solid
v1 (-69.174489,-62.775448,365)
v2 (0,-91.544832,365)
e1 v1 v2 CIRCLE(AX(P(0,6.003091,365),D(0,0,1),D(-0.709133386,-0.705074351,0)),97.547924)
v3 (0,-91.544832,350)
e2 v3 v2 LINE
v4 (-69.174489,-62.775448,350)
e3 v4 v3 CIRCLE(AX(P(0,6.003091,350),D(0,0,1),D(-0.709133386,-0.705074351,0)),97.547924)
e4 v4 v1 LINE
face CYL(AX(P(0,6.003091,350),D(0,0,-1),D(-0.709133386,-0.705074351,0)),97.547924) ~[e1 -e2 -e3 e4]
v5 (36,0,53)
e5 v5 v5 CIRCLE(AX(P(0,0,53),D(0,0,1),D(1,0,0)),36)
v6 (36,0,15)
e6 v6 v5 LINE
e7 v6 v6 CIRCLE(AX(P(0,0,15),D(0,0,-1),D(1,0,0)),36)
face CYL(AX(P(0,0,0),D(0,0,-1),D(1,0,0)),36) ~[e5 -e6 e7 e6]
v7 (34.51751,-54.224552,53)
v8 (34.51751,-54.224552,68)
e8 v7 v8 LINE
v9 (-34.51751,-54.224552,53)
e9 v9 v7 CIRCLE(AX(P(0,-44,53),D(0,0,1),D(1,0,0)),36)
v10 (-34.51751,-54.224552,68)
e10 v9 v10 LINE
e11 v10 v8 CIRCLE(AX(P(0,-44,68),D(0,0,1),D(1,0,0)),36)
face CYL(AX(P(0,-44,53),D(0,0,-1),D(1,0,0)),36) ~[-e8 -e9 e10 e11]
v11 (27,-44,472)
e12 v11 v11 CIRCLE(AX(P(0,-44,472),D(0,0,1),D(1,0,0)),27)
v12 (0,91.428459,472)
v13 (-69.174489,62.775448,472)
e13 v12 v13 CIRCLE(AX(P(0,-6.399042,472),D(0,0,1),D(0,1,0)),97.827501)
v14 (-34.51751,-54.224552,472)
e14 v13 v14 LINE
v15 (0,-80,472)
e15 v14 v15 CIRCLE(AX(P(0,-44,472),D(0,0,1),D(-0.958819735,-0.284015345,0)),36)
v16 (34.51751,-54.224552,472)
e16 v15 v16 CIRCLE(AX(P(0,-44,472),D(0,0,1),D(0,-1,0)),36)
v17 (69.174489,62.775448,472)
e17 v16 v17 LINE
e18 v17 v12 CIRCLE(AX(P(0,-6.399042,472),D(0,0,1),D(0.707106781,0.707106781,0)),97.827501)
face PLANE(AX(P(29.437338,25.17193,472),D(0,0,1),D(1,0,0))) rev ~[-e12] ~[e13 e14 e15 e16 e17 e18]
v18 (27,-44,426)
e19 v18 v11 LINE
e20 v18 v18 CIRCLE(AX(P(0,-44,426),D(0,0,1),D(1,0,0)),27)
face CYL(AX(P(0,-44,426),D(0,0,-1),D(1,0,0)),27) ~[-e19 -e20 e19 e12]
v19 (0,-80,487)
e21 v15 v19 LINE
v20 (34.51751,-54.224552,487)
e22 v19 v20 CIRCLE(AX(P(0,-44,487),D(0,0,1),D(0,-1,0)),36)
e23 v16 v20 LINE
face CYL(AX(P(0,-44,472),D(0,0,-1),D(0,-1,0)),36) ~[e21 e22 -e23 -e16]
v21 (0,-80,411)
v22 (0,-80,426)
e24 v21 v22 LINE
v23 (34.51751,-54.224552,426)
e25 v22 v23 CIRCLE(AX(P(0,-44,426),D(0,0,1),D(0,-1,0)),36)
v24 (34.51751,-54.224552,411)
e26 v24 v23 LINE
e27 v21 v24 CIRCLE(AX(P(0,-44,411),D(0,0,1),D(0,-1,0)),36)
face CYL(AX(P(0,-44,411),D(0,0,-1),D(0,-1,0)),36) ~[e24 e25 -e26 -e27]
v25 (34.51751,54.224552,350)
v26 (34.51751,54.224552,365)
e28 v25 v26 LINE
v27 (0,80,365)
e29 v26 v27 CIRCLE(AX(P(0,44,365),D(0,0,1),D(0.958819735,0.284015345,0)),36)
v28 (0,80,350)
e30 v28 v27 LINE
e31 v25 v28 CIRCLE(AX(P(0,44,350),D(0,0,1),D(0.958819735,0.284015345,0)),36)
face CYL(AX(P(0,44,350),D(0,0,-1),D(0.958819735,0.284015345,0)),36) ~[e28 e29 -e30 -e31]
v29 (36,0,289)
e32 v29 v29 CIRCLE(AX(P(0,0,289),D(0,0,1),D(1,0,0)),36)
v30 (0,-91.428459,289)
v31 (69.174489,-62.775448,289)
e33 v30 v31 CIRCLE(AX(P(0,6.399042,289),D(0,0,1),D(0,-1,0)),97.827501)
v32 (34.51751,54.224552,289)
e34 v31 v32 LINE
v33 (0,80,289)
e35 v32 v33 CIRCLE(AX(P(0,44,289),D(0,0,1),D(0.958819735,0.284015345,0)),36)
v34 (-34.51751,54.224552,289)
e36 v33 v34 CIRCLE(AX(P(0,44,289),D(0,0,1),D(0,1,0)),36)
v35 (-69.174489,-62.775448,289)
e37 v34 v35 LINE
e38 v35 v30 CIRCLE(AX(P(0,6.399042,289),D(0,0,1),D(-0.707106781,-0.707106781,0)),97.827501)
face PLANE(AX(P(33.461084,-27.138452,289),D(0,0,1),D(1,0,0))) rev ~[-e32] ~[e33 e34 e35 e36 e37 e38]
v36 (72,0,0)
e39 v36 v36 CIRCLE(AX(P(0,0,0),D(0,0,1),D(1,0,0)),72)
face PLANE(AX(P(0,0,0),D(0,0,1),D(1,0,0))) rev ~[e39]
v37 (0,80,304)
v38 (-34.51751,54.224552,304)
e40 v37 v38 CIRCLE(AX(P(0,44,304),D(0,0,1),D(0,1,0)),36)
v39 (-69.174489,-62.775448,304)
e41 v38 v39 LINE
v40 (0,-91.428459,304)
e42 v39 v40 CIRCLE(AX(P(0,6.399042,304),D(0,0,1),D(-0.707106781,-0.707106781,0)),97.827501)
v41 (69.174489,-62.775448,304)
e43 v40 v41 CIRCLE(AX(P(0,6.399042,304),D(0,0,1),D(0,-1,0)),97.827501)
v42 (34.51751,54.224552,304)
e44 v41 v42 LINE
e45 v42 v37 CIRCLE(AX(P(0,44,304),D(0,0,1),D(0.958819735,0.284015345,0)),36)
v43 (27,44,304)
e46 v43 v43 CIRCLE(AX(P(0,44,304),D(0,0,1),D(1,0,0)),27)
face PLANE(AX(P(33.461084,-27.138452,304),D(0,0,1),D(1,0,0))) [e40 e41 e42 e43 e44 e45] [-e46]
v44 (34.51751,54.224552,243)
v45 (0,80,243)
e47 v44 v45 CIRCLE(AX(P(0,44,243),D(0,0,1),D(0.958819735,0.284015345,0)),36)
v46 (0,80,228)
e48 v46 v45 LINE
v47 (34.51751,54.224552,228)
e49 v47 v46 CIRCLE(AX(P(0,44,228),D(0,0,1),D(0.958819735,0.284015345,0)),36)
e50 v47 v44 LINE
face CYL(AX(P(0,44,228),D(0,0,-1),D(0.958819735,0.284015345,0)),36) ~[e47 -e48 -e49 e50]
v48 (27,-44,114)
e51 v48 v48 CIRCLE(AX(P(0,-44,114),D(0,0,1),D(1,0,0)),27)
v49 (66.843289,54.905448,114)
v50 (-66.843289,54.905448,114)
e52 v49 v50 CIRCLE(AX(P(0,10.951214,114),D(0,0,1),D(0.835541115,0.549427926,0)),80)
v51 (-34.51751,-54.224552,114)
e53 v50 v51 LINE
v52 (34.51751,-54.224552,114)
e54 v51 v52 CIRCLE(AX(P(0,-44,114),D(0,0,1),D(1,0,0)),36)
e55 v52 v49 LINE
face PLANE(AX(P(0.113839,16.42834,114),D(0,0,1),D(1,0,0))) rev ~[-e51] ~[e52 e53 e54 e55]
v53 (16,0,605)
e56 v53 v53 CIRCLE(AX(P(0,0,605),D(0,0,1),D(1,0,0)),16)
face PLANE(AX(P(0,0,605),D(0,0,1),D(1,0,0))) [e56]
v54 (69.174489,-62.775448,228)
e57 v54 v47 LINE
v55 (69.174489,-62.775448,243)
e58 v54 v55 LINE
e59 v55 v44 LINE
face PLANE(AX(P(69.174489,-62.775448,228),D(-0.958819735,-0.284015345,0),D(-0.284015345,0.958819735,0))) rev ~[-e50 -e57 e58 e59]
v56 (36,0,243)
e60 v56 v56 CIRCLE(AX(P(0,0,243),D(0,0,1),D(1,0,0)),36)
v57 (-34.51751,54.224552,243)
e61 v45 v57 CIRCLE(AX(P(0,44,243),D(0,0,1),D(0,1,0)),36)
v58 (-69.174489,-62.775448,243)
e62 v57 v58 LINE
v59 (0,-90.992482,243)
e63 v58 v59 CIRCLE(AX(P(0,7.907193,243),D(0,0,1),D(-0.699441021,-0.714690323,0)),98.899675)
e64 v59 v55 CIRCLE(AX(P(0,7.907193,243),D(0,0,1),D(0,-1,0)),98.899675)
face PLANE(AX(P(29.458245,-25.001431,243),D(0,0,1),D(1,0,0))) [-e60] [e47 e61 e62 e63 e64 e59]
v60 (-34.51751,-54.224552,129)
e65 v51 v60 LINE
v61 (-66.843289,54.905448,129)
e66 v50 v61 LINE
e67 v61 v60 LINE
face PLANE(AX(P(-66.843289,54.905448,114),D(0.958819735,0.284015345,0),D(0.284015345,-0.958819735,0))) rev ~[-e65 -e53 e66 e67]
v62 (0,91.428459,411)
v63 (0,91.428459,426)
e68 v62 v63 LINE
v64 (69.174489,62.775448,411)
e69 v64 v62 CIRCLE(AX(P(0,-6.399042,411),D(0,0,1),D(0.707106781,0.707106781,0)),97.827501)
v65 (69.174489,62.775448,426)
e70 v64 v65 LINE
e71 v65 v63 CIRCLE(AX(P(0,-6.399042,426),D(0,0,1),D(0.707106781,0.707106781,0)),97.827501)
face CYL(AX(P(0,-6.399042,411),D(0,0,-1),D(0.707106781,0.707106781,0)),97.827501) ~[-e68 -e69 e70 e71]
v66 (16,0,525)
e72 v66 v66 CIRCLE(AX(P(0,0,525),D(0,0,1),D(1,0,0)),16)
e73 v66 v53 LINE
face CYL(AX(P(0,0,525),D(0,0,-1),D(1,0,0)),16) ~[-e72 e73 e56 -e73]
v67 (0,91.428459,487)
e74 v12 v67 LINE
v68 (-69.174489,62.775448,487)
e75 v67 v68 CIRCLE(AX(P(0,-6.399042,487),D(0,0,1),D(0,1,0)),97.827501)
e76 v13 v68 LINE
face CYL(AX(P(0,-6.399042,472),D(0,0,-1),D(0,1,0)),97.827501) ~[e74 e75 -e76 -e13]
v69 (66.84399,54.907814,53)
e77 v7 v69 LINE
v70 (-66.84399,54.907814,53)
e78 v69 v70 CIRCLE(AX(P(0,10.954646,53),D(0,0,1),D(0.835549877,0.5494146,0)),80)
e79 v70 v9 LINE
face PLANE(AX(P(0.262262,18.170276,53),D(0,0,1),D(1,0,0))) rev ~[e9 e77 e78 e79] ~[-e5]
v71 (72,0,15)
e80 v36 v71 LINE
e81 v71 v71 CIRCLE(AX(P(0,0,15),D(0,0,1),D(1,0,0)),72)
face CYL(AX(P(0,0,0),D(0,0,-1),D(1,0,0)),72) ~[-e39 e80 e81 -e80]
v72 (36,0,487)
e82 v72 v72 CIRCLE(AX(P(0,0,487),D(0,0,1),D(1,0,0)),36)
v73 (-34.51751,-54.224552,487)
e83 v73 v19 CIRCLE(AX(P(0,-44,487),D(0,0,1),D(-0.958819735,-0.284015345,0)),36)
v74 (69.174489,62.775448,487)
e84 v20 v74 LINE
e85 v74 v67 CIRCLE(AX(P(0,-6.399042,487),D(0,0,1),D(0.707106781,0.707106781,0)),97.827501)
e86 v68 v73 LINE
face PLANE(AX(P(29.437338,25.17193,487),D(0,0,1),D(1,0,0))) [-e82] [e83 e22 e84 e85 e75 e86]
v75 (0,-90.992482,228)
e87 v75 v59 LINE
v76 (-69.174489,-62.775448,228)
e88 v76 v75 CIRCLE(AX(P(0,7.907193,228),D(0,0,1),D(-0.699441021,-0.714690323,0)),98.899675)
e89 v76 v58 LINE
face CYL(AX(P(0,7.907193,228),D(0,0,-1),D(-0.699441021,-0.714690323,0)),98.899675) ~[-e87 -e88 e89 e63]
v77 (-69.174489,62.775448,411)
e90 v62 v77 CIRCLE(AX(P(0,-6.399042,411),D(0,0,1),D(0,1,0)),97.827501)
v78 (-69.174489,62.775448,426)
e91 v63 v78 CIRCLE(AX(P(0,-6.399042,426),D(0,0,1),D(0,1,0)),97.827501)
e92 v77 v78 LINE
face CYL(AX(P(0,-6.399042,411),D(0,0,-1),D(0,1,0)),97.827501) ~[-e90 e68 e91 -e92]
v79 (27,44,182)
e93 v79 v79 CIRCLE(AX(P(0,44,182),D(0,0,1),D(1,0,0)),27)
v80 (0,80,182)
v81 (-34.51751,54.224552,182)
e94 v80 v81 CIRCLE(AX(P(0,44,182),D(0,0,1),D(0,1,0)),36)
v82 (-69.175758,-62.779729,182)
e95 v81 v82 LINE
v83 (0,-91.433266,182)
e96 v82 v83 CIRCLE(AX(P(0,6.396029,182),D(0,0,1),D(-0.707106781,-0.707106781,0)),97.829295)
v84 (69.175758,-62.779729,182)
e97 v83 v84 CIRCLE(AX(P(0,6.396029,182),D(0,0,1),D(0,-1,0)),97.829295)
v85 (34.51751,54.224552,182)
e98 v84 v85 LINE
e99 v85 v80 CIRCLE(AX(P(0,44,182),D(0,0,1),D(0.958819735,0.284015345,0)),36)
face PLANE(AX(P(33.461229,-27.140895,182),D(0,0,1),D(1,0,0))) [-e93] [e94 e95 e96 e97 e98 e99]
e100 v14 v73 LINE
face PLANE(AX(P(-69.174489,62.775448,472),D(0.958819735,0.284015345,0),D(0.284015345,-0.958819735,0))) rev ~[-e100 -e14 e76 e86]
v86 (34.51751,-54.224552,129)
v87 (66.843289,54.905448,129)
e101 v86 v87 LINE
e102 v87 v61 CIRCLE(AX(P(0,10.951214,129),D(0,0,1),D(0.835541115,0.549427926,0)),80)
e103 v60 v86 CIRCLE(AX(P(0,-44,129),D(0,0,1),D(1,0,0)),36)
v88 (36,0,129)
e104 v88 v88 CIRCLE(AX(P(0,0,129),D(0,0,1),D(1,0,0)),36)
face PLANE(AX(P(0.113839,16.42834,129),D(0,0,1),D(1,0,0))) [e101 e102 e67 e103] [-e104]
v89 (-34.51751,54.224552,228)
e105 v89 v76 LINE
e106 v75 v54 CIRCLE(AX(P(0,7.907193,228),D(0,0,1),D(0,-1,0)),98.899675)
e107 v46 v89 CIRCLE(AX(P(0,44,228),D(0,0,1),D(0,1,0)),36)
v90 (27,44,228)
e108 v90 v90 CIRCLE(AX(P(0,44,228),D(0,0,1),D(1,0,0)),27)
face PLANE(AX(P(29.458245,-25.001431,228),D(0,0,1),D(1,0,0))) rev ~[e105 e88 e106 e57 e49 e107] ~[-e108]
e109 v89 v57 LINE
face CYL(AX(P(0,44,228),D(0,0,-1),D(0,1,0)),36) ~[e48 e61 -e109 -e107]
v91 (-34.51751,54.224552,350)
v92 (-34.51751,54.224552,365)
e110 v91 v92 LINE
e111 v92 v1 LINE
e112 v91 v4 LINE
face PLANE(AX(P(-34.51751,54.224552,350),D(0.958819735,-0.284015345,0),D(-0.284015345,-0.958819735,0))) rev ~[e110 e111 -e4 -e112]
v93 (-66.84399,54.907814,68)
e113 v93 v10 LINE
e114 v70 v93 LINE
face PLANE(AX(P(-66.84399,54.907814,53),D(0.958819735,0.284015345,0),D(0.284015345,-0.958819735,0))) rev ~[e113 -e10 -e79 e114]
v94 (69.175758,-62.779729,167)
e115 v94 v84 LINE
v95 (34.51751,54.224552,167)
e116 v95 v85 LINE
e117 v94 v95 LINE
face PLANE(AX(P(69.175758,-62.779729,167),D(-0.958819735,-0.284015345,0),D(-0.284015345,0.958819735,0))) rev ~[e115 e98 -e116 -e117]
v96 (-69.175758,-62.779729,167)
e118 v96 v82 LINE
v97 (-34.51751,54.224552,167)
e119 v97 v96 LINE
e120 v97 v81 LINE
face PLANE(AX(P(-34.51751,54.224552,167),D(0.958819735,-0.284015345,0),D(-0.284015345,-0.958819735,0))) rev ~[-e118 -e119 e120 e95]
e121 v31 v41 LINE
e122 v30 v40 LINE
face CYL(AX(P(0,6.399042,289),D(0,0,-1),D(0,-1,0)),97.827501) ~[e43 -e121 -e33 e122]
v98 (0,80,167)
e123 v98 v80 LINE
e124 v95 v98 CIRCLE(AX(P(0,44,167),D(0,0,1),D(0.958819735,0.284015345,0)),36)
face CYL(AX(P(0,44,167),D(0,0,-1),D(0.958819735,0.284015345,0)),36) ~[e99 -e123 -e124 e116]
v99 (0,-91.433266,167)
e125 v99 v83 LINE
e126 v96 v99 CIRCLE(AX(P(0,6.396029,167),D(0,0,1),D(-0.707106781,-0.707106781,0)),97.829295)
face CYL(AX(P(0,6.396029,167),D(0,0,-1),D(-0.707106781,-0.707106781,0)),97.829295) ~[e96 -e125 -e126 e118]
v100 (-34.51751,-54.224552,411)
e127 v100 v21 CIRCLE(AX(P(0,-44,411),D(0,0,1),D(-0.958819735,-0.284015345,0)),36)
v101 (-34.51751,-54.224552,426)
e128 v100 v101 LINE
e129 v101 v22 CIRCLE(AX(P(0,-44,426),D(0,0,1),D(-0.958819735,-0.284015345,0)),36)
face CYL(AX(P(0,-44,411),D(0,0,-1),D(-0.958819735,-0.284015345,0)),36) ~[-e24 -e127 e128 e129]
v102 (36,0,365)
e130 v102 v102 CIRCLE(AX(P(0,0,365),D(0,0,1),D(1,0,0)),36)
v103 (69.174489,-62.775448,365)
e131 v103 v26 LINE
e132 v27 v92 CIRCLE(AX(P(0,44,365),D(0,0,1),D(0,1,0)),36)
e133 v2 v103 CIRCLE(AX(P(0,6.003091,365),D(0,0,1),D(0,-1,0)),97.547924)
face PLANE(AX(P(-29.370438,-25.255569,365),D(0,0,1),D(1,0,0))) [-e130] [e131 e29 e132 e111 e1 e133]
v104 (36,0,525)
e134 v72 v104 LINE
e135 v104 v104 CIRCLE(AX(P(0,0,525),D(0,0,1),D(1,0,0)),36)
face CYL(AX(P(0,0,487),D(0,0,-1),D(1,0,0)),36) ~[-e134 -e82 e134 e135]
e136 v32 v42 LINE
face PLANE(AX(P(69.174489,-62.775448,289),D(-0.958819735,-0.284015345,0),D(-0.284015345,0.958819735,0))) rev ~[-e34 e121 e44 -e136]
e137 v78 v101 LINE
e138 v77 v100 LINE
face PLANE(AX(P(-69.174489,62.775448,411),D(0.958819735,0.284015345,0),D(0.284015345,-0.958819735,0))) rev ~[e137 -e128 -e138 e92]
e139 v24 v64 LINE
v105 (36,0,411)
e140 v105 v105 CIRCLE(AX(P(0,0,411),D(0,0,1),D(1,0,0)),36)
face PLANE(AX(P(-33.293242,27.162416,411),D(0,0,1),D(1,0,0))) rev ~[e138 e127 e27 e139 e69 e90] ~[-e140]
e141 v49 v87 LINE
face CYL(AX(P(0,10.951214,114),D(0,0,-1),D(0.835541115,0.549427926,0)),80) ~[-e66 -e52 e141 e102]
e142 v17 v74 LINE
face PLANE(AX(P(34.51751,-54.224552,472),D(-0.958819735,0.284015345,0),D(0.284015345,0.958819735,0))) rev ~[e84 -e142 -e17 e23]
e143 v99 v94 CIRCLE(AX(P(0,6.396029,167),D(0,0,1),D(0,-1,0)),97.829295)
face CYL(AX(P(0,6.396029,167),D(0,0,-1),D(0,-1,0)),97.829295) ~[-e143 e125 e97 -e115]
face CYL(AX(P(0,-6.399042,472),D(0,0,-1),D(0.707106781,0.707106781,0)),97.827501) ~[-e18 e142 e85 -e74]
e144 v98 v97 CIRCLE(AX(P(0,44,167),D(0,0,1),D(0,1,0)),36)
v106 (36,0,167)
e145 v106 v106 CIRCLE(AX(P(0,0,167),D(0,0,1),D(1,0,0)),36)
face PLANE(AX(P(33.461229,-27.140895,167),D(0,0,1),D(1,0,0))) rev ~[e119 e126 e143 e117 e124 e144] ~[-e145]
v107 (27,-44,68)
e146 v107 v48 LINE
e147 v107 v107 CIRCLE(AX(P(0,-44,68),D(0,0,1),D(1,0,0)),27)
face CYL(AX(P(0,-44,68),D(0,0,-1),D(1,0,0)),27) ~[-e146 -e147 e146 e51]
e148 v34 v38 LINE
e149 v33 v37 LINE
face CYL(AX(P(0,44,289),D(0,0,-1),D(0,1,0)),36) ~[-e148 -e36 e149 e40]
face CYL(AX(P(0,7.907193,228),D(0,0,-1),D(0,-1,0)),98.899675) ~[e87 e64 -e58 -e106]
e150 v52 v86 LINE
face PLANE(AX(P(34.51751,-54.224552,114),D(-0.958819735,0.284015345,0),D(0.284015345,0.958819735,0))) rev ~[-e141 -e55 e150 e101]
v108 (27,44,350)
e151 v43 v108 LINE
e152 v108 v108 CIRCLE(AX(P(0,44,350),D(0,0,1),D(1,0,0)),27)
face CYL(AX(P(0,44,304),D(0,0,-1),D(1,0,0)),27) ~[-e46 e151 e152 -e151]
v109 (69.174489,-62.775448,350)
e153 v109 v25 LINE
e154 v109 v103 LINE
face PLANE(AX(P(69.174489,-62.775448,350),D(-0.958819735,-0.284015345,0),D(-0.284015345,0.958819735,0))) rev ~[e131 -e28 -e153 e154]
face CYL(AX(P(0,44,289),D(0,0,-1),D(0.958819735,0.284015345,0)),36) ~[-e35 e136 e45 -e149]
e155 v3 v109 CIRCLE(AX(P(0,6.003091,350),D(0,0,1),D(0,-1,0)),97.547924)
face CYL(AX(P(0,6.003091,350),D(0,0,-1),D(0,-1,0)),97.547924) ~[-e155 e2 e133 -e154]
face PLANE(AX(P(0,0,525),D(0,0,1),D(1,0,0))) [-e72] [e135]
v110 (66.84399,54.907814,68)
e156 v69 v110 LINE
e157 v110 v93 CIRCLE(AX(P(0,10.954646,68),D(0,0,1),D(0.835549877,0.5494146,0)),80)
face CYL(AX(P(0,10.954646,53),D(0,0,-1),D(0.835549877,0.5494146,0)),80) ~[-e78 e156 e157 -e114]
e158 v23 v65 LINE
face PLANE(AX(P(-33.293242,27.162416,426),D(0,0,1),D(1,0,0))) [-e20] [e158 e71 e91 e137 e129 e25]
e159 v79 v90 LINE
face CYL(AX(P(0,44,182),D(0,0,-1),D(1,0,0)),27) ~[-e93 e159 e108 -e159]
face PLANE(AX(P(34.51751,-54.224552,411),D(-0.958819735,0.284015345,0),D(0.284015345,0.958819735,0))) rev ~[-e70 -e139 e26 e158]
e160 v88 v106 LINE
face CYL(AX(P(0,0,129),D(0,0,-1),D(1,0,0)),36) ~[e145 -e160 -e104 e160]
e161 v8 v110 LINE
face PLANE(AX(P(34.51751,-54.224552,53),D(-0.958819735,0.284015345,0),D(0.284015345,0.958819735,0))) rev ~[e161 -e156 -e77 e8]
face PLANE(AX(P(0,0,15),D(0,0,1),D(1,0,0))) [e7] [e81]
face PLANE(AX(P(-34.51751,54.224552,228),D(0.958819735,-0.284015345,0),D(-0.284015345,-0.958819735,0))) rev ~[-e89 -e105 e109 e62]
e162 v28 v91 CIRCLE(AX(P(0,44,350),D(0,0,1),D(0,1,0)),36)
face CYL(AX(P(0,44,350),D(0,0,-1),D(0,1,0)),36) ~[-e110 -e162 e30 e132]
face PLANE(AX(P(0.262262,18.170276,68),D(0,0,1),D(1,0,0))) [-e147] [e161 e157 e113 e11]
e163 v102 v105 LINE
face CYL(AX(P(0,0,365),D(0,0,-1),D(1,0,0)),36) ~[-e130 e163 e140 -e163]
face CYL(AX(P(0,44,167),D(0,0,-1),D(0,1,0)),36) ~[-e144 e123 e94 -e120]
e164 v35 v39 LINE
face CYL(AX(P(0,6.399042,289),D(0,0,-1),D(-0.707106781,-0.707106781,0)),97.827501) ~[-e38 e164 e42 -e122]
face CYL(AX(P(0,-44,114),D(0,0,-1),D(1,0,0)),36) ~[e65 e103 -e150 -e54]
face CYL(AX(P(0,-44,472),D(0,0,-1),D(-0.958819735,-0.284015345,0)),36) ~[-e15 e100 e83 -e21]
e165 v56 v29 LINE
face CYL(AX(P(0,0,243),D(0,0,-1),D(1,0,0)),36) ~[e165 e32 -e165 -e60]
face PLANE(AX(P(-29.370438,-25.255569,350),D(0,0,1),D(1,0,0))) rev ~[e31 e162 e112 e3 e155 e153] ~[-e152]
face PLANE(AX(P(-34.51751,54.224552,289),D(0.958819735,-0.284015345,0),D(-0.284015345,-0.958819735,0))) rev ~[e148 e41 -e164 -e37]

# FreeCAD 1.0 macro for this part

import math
import FreeCAD as App
import Part
import Sketcher
from FreeCAD import Vector
Q = App.Units.Quantity

doc = App.newDocument("Part")
body = doc.addObject("PartDesign::Body", "Body")

sketch1 = body.newObject("Sketcher::SketchObject", "Sketch")
sketch1.AttachmentSupport = (doc.getObject("XY_Plane"), [""])
sketch1.MapMode = "FlatFace"
sketch1.addGeometry(Part.Circle(Vector(0, 0, 0), Vector(0, 0, 1), 72), False)
sketch1.addConstraint(Sketcher.Constraint("Coincident", 0, 3, -1, 1))
sketch1.addConstraint(Sketcher.Constraint("Diameter", 0, Q("144 mm")))
pad1 = body.newObject("PartDesign::Pad", "Pad")
pad1.Profile = sketch1
pad1.Length = 15

sketch2 = body.newObject("Sketcher::SketchObject", "Sketch001")
sketch2.AttachmentSupport = (doc.getObject("XY_Plane"), [""])
sketch2.MapMode = "FlatFace"
sketch2.addGeometry(Part.Circle(Vector(0, 0, 0), Vector(0, 0, 1), 36), False)
sketch2.addConstraint(Sketcher.Constraint("Coincident", 0, 3, -1, 1))
sketch2.addConstraint(Sketcher.Constraint("Diameter", 0, Q("72 mm")))
pad2 = body.newObject("PartDesign::Pad", "Pad001")
pad2.Profile = sketch2
pad2.Length = 53

sketch3 = body.newObject("Sketcher::SketchObject", "Sketch002")
sketch3.AttachmentSupport = (doc.getObject("XY_Plane"), [""])
sketch3.MapMode = "FlatFace"
sketch3.AttachmentOffset = App.Placement(Vector(0, 0, 53), App.Rotation())
sketch3.addGeometry(Part.ArcOfCircle(Part.Circle(Vector(0, 11, 0), Vector(0, 0, 1), 80), math.radians(33), math.radians(147)), False)
sketch3.addGeometry(Part.LineSegment(Vector(-67, 55, 0), Vector(-35, -54, 0)), False)
sketch3.addGeometry(Part.ArcOfCircle(Part.Circle(Vector(0, -44, 0), Vector(0, 0, 1), 36), math.radians(-164), math.radians(-16)), False)
sketch3.addGeometry(Part.LineSegment(Vector(35, -54, 0), Vector(67, 55, 0)), False)
sketch3.addConstraint(Sketcher.Constraint("Coincident", 0, 2, 1, 1))
sketch3.addConstraint(Sketcher.Constraint("Tangent", 1, 2, 2, 1))
sketch3.addConstraint(Sketcher.Constraint("Tangent", 2, 2, 3, 1))
sketch3.addConstraint(Sketcher.Constraint("Coincident", 3, 2, 0, 1))
sketch3.addConstraint(Sketcher.Constraint("Symmetric", 1, 2, 2, 2, -2))
sketch3.addConstraint(Sketcher.Constraint("PointOnObject", 0, 3, -2))
sketch3.addConstraint(Sketcher.Constraint("Radius", 0, Q("80 mm")))
sketch3.addConstraint(Sketcher.Constraint("Radius", 2, Q("36 mm")))
sketch3.addConstraint(Sketcher.Constraint("DistanceY", 2, 3, -1, 1, Q("44 mm")))
sketch3.addConstraint(Sketcher.Constraint("Angle", 1, Q("-73.5 deg")))
sketch3.addConstraint(Sketcher.Constraint("DistanceY", 1, 2, 0, 3, Q("65.179199 mm")))
pad3 = body.newObject("PartDesign::Pad", "Pad002")
pad3.Profile = sketch3
pad3.Length = 15

sketch4 = body.newObject("Sketcher::SketchObject", "Sketch003")
sketch4.AttachmentSupport = (doc.getObject("XY_Plane"), [""])
sketch4.MapMode = "FlatFace"
sketch4.AttachmentOffset = App.Placement(Vector(0, 0, 68), App.Rotation())
sketch4.addGeometry(Part.Circle(Vector(0, -44, 0), Vector(0, 0, 1), 27), False)
sketch4.addConstraint(Sketcher.Constraint("PointOnObject", 0, 3, -2))
sketch4.addConstraint(Sketcher.Constraint("Diameter", 0, Q("54 mm")))
sketch4.addConstraint(Sketcher.Constraint("DistanceY", 0, 3, -1, 1, Q("44 mm")))
pad4 = body.newObject("PartDesign::Pad", "Pad003")
pad4.Profile = sketch4
pad4.Length = 46

sketch5 = body.newObject("Sketcher::SketchObject", "Sketch004")
sketch5.AttachmentSupport = (doc.getObject("XY_Plane"), [""])
sketch5.MapMode = "FlatFace"
sketch5.AttachmentOffset = App.Placement(Vector(0, 0, 114), App.Rotation())
sketch5.addGeometry(Part.LineSegment(Vector(-67, 55, 0), Vector(-35, -54, 0)), False)
sketch5.addGeometry(Part.ArcOfCircle(Part.Circle(Vector(0, -44, 0), Vector(0, 0, 1), 36), math.radians(-164), math.radians(-16)), False)
sketch5.addGeometry(Part.LineSegment(Vector(35, -54, 0), Vector(67, 55, 0)), False)
sketch5.addGeometry(Part.ArcOfCircle(Part.Circle(Vector(0, 11, 0), Vector(0, 0, 1), 80), math.radians(33), math.radians(147)), False)
sketch5.addConstraint(Sketcher.Constraint("Tangent", 0, 2, 1, 1))
sketch5.addConstraint(Sketcher.Constraint("Tangent", 1, 2, 2, 1))
sketch5.addConstraint(Sketcher.Constraint("Coincident", 2, 2, 3, 1))
sketch5.addConstraint(Sketcher.Constraint("Coincident", 3, 2, 0, 1))
sketch5.addConstraint(Sketcher.Constraint("Symmetric", 0, 2, 1, 2, -2))
sketch5.addConstraint(Sketcher.Constraint("PointOnObject", 3, 3, -2))
sketch5.addConstraint(Sketcher.Constraint("Radius", 1, Q("36 mm")))
sketch5.addConstraint(Sketcher.Constraint("Radius", 3, Q("80 mm")))
sketch5.addConstraint(Sketcher.Constraint("DistanceY", 1, 3, -1, 1, Q("44 mm")))
sketch5.addConstraint(Sketcher.Constraint("Angle", 0, Q("-73.5 deg")))
sketch5.addConstraint(Sketcher.Constraint("DistanceY", 1, 2, 2, 2, Q("109.13 mm")))
pad5 = body.newObject("PartDesign::Pad", "Pad004")
pad5.Profile = sketch5
pad5.Length = 15

sketch6 = body.newObject("Sketcher::SketchObject", "Sketch005")
sketch6.AttachmentSupport = (doc.getObject("XY_Plane"), [""])
sketch6.MapMode = "FlatFace"
sketch6.AttachmentOffset = App.Placement(Vector(0, 0, 129), App.Rotation())
sketch6.addGeometry(Part.Circle(Vector(0, 0, 0), Vector(0, 0, 1), 36), False)
sketch6.addConstraint(Sketcher.Constraint("Coincident", 0, 3, -1, 1))
sketch6.addConstraint(Sketcher.Constraint("Diameter", 0, Q("72 mm")))
pad6 = body.newObject("PartDesign::Pad", "Pad005")
pad6.Profile = sketch6
pad6.Length = 38

sketch7 = body.newObject("Sketcher::SketchObject", "Sketch006")
sketch7.AttachmentSupport = (doc.getObject("XY_Plane"), [""])
sketch7.MapMode = "FlatFace"
sketch7.AttachmentOffset = App.Placement(Vector(0, 0, 167), App.Rotation())
sketch7.addGeometry(Part.ArcOfCircle(Part.Circle(Vector(0, 44, 0), Vector(0, 0, 1), 36), math.radians(16), math.radians(90)), False)
sketch7.addGeometry(Part.ArcOfCircle(Part.Circle(Vector(0, 44, 0), Vector(0, 0, 1), 36), math.radians(90), math.radians(164)), False)
sketch7.addGeometry(Part.LineSegment(Vector(-35, 54, 0), Vector(-69, -63, 0)), False)
sketch7.addGeometry(Part.ArcOfCircle(Part.Circle(Vector(0, 6, 0), Vector(0, 0, 1), 98), math.radians(-135), math.radians(-90)), False)
sketch7.addGeometry(Part.ArcOfCircle(Part.Circle(Vector(0, 6, 0), Vector(0, 0, 1), 98), math.radians(-90), math.radians(-45)), False)
sketch7.addGeometry(Part.LineSegment(Vector(69, -63, 0), Vector(35, 54, 0)), False)
sketch7.addConstraint(Sketcher.Constraint("Tangent", 0, 2, 1, 1))
sketch7.addConstraint(Sketcher.Constraint("Tangent", 1, 2, 2, 1))
sketch7.addConstraint(Sketcher.Constraint("Coincident", 2, 2, 3, 1))
sketch7.addConstraint(Sketcher.Constraint("Tangent", 3, 2, 4, 1))
sketch7.addConstraint(Sketcher.Constraint("Coincident", 4, 2, 5, 1))
sketch7.addConstraint(Sketcher.Constraint("Tangent", 5, 2, 0, 1))
sketch7.addConstraint(Sketcher.Constraint("Equal", 0, 1))
sketch7.addConstraint(Sketcher.Constraint("Equal", 3, 4))
sketch7.addConstraint(Sketcher.Constraint("Symmetric", 2, 2, 4, 2, -2))
sketch7.addConstraint(Sketcher.Constraint("PointOnObject", 0, 3, -2))
sketch7.addConstraint(Sketcher.Constraint("PointOnObject", 0, 2, -2))
sketch7.addConstraint(Sketcher.Constraint("PointOnObject", 3, 2, -2))
sketch7.addConstraint(Sketcher.Constraint("Radius", 0, Q("36 mm")))
sketch7.addConstraint(Sketcher.Constraint("DistanceY", -1, 1, 0, 3, Q("44 mm")))
sketch7.addConstraint(Sketcher.Constraint("Angle", 2, Q("-106.5 deg")))
sketch7.addConstraint(Sketcher.Constraint("Radius", 3, Q("97.829295 mm")))
sketch7.addConstraint(Sketcher.Constraint("DistanceY", -1, 1, 3, 3, Q("6.396029 mm")))
pad7 = body.newObject("PartDesign::Pad", "Pad006")
pad7.Profile = sketch7
pad7.Length = 15

sketch8 = body.newObject("Sketcher::SketchObject", "Sketch007")
sketch8.AttachmentSupport = (doc.getObject("XY_Plane"), [""])
sketch8.MapMode = "FlatFace"
sketch8.AttachmentOffset = App.Placement(Vector(0, 0, 182), App.Rotation())
sketch8.addGeometry(Part.Circle(Vector(0, 44, 0), Vector(0, 0, 1), 27), False)
sketch8.addConstraint(Sketcher.Constraint("PointOnObject", 0, 3, -2))
sketch8.addConstraint(Sketcher.Constraint("Diameter", 0, Q("54 mm")))
sketch8.addConstraint(Sketcher.Constraint("DistanceY", -1, 1, 0, 3, Q("44 mm")))
pad8 = body.newObject("PartDesign::Pad", "Pad007")
pad8.Profile = sketch8
pad8.Length = 46

sketch9 = body.newObject("Sketcher::SketchObject", "Sketch008")
sketch9.AttachmentSupport = (doc.getObject("XY_Plane"), [""])
sketch9.MapMode = "FlatFace"
sketch9.AttachmentOffset = App.Placement(Vector(0, 0, 228), App.Rotation())
sketch9.addGeometry(Part.ArcOfCircle(Part.Circle(Vector(0, 8, 0), Vector(0, 0, 1), 99), math.radians(-134), math.radians(-90)), False)
sketch9.addGeometry(Part.ArcOfCircle(Part.Circle(Vector(0, 8, 0), Vector(0, 0, 1), 99), math.radians(-90), math.radians(-46)), False)
sketch9.addGeometry(Part.LineSegment(Vector(69, -63, 0), Vector(35, 54, 0)), False)
sketch9.addGeometry(Part.ArcOfCircle(Part.Circle(Vector(0, 44, 0), Vector(0, 0, 1), 36), math.radians(16), math.radians(90)), False)
sketch9.addGeometry(Part.ArcOfCircle(Part.Circle(Vector(0, 44, 0), Vector(0, 0, 1), 36), math.radians(90), math.radians(164)), False)
sketch9.addGeometry(Part.LineSegment(Vector(-35, 54, 0), Vector(-69, -63, 0)), False)
sketch9.addConstraint(Sketcher.Constraint("Tangent", 0, 2, 1, 1))
sketch9.addConstraint(Sketcher.Constraint("Coincident", 1, 2, 2, 1))
sketch9.addConstraint(Sketcher.Constraint("Tangent", 2, 2, 3, 1))
sketch9.addConstraint(Sketcher.Constraint("Tangent", 3, 2, 4, 1))
sketch9.addConstraint(Sketcher.Constraint("Tangent", 4, 2, 5, 1))
sketch9.addConstraint(Sketcher.Constraint("Coincident", 5, 2, 0, 1))
sketch9.addConstraint(Sketcher.Constraint("Equal", 0, 1))
sketch9.addConstraint(Sketcher.Constraint("Equal", 3, 4))
sketch9.addConstraint(Sketcher.Constraint("Symmetric", 2, 2, 4, 2, -2))
sketch9.addConstraint(Sketcher.Constraint("PointOnObject", 0, 3, -2))
sketch9.addConstraint(Sketcher.Constraint("PointOnObject", 0, 2, -2))
sketch9.addConstraint(Sketcher.Constraint("PointOnObject", 3, 2, -2))
sketch9.addConstraint(Sketcher.Constraint("Radius", 3, Q("36 mm")))
sketch9.addConstraint(Sketcher.Constraint("DistanceY", -1, 1, 3, 3, Q("44 mm")))
sketch9.addConstraint(Sketcher.Constraint("Angle", 2, Q("106.5 deg")))
sketch9.addConstraint(Sketcher.Constraint("DistanceY", 1, 2, 2, 2, Q("117 mm")))
sketch9.addConstraint(Sketcher.Constraint("Radius", 0, Q("98.899675 mm")))
pad9 = body.newObject("PartDesign::Pad", "Pad008")
pad9.Profile = sketch9
pad9.Length = 15

sketch10 = body.newObject("Sketcher::SketchObject", "Sketch009")
sketch10.AttachmentSupport = (doc.getObject("XY_Plane"), [""])
sketch10.MapMode = "FlatFace"
sketch10.AttachmentOffset = App.Placement(Vector(0, 0, 243), App.Rotation())
sketch10.addGeometry(Part.Circle(Vector(0, 0, 0), Vector(0, 0, 1), 36), False)
sketch10.addConstraint(Sketcher.Constraint("Coincident", 0, 3, -1, 1))
sketch10.addConstraint(Sketcher.Constraint("Diameter", 0, Q("72 mm")))
pad10 = body.newObject("PartDesign::Pad", "Pad009")
pad10.Profile = sketch10
pad10.Length = 46

sketch11 = body.newObject("Sketcher::SketchObject", "Sketch010")
sketch11.AttachmentSupport = (doc.getObject("XY_Plane"), [""])
sketch11.MapMode = "FlatFace"
sketch11.AttachmentOffset = App.Placement(Vector(0, 0, 289), App.Rotation())
sketch11.addGeometry(Part.ArcOfCircle(Part.Circle(Vector(0, 44, 0), Vector(0, 0, 1), 36), math.radians(16), math.radians(90)), False)
sketch11.addGeometry(Part.ArcOfCircle(Part.Circle(Vector(0, 44, 0), Vector(0, 0, 1), 36), math.radians(90), math.radians(164)), False)
sketch11.addGeometry(Part.LineSegment(Vector(-35, 54, 0), Vector(-69, -63, 0)), False)
sketch11.addGeometry(Part.ArcOfCircle(Part.Circle(Vector(0, 6, 0), Vector(0, 0, 1), 98), math.radians(-135), math.radians(-90)), False)
sketch11.addGeometry(Part.ArcOfCircle(Part.Circle(Vector(0, 6, 0), Vector(0, 0, 1), 98), math.radians(-90), math.radians(-45)), False)
sketch11.addGeometry(Part.LineSegment(Vector(69, -63, 0), Vector(35, 54, 0)), False)
sketch11.addConstraint(Sketcher.Constraint("Tangent", 0, 2, 1, 1))
sketch11.addConstraint(Sketcher.Constraint("Tangent", 1, 2, 2, 1))
sketch11.addConstraint(Sketcher.Constraint("Coincident", 2, 2, 3, 1))
sketch11.addConstraint(Sketcher.Constraint("Tangent", 3, 2, 4, 1))
sketch11.addConstraint(Sketcher.Constraint("Coincident", 4, 2, 5, 1))
sketch11.addConstraint(Sketcher.Constraint("Tangent", 5, 2, 0, 1))
sketch11.addConstraint(Sketcher.Constraint("Equal", 0, 1))
sketch11.addConstraint(Sketcher.Constraint("Equal", 3, 4))
sketch11.addConstraint(Sketcher.Constraint("Symmetric", 2, 2, 4, 2, -2))
sketch11.addConstraint(Sketcher.Constraint("PointOnObject", 0, 3, -2))
sketch11.addConstraint(Sketcher.Constraint("PointOnObject", 0, 2, -2))
sketch11.addConstraint(Sketcher.Constraint("PointOnObject", 3, 2, -2))
sketch11.addConstraint(Sketcher.Constraint("Radius", 0, Q("36 mm")))
sketch11.addConstraint(Sketcher.Constraint("DistanceY", -1, 1, 0, 3, Q("44 mm")))
sketch11.addConstraint(Sketcher.Constraint("Angle", 2, Q("-106.5 deg")))
sketch11.addConstraint(Sketcher.Constraint("DistanceY", 2, 2, 1, 2, Q("117 mm")))
sketch11.addConstraint(Sketcher.Constraint("Radius", 3, Q("97.827501 mm")))
pad11 = body.newObject("PartDesign::Pad", "Pad010")
pad11.Profile = sketch11
pad11.Length = 15

sketch12 = body.newObject("Sketcher::SketchObject", "Sketch011")
sketch12.AttachmentSupport = (doc.getObject("XY_Plane"), [""])
sketch12.MapMode = "FlatFace"
sketch12.AttachmentOffset = App.Placement(Vector(0, 0, 304), App.Rotation())
sketch12.addGeometry(Part.Circle(Vector(0, 44, 0), Vector(0, 0, 1), 27), False)
sketch12.addConstraint(Sketcher.Constraint("PointOnObject", 0, 3, -2))
sketch12.addConstraint(Sketcher.Constraint("Diameter", 0, Q("54 mm")))
sketch12.addConstraint(Sketcher.Constraint("DistanceY", -1, 1, 0, 3, Q("44 mm")))
pad12 = body.newObject("PartDesign::Pad", "Pad011")
pad12.Profile = sketch12
pad12.Length = 46

sketch13 = body.newObject("Sketcher::SketchObject", "Sketch012")
sketch13.AttachmentSupport = (doc.getObject("XY_Plane"), [""])
sketch13.MapMode = "FlatFace"
sketch13.AttachmentOffset = App.Placement(Vector(0, 0, 350), App.Rotation())
sketch13.addGeometry(Part.LineSegment(Vector(-35, 54, 0), Vector(-69, -63, 0)), False)
sketch13.addGeometry(Part.ArcOfCircle(Part.Circle(Vector(0, 6, 0), Vector(0, 0, 1), 98), math.radians(-135), math.radians(-90)), False)
sketch13.addGeometry(Part.ArcOfCircle(Part.Circle(Vector(0, 6, 0), Vector(0, 0, 1), 98), math.radians(-90), math.radians(-45)), False)
sketch13.addGeometry(Part.LineSegment(Vector(69, -63, 0), Vector(35, 54, 0)), False)
sketch13.addGeometry(Part.ArcOfCircle(Part.Circle(Vector(0, 44, 0), Vector(0, 0, 1), 36), math.radians(16), math.radians(90)), False)
sketch13.addGeometry(Part.ArcOfCircle(Part.Circle(Vector(0, 44, 0), Vector(0, 0, 1), 36), math.radians(90), math.radians(164)), False)
sketch13.addConstraint(Sketcher.Constraint("Coincident", 0, 2, 1, 1))
sketch13.addConstraint(Sketcher.Constraint("Tangent", 1, 2, 2, 1))
sketch13.addConstraint(Sketcher.Constraint("Coincident", 2, 2, 3, 1))
sketch13.addConstraint(Sketcher.Constraint("Tangent", 3, 2, 4, 1))
sketch13.addConstraint(Sketcher.Constraint("Tangent", 4, 2, 5, 1))
sketch13.addConstraint(Sketcher.Constraint("Tangent", 5, 2, 0, 1))
sketch13.addConstraint(Sketcher.Constraint("Equal", 1, 2))
sketch13.addConstraint(Sketcher.Constraint("Equal", 4, 5))
sketch13.addConstraint(Sketcher.Constraint("Symmetric", 0, 2, 2, 2, -2))
sketch13.addConstraint(Sketcher.Constraint("PointOnObject", 4, 3, -2))
sketch13.addConstraint(Sketcher.Constraint("PointOnObject", 1, 2, -2))
sketch13.addConstraint(Sketcher.Constraint("PointOnObject", 4, 2, -2))
sketch13.addConstraint(Sketcher.Constraint("Radius", 4, Q("36 mm")))
sketch13.addConstraint(Sketcher.Constraint("DistanceY", -1, 1, 4, 3, Q("44 mm")))
sketch13.addConstraint(Sketcher.Constraint("Angle", 0, Q("-106.5 deg")))
sketch13.addConstraint(Sketcher.Constraint("DistanceY", 2, 2, 3, 2, Q("117 mm")))
sketch13.addConstraint(Sketcher.Constraint("Radius", 1, Q("97.547924 mm")))
pad13 = body.newObject("PartDesign::Pad", "Pad012")
pad13.Profile = sketch13
pad13.Length = 15

sketch14 = body.newObject("Sketcher::SketchObject", "Sketch013")
sketch14.AttachmentSupport = (doc.getObject("XY_Plane"), [""])
sketch14.MapMode = "FlatFace"
sketch14.AttachmentOffset = App.Placement(Vector(0, 0, 365), App.Rotation())
sketch14.addGeometry(Part.Circle(Vector(0, 0, 0), Vector(0, 0, 1), 36), False)
sketch14.addConstraint(Sketcher.Constraint("Coincident", 0, 3, -1, 1))
sketch14.addConstraint(Sketcher.Constraint("Diameter", 0, Q("72 mm")))
pad14 = body.newObject("PartDesign::Pad", "Pad013")
pad14.Profile = sketch14
pad14.Length = 46

sketch15 = body.newObject("Sketcher::SketchObject", "Sketch014")
sketch15.AttachmentSupport = (doc.getObject("XY_Plane"), [""])
sketch15.MapMode = "FlatFace"
sketch15.AttachmentOffset = App.Placement(Vector(0, 0, 411), App.Rotation())
sketch15.addGeometry(Part.ArcOfCircle(Part.Circle(Vector(0, -44, 0), Vector(0, 0, 1), 36), math.radians(-90), math.radians(-16)), False)
sketch15.addGeometry(Part.LineSegment(Vector(35, -54, 0), Vector(69, 63, 0)), False)
sketch15.addGeometry(Part.ArcOfCircle(Part.Circle(Vector(0, -6, 0), Vector(0, 0, 1), 98), math.radians(45), math.radians(90)), False)
sketch15.addGeometry(Part.ArcOfCircle(Part.Circle(Vector(0, -6, 0), Vector(0, 0, 1), 98), math.radians(90), math.radians(135)), False)
sketch15.addGeometry(Part.LineSegment(Vector(-69, 63, 0), Vector(-35, -54, 0)), False)
sketch15.addGeometry(Part.ArcOfCircle(Part.Circle(Vector(0, -44, 0), Vector(0, 0, 1), 36), math.radians(-164), math.radians(-90)), False)
sketch15.addConstraint(Sketcher.Constraint("Tangent", 0, 2, 1, 1))
sketch15.addConstraint(Sketcher.Constraint("Coincident", 1, 2, 2, 1))
sketch15.addConstraint(Sketcher.Constraint("Tangent", 2, 2, 3, 1))
sketch15.addConstraint(Sketcher.Constraint("Coincident", 3, 2, 4, 1))
sketch15.addConstraint(Sketcher.Constraint("Tangent", 4, 2, 5, 1))
sketch15.addConstraint(Sketcher.Constraint("Tangent", 5, 2, 0, 1))
sketch15.addConstraint(Sketcher.Constraint("Equal", 2, 3))
sketch15.addConstraint(Sketcher.Constraint("Equal", 0, 5))
sketch15.addConstraint(Sketcher.Constraint("Symmetric", 1, 2, 3, 2, -2))
sketch15.addConstraint(Sketcher.Constraint("PointOnObject", 0, 3, -2))
sketch15.addConstraint(Sketcher.Constraint("PointOnObject", 2, 2, -2))
sketch15.addConstraint(Sketcher.Constraint("PointOnObject", 5, 2, -2))
sketch15.addConstraint(Sketcher.Constraint("Radius", 0, Q("36 mm")))
sketch15.addConstraint(Sketcher.Constraint("DistanceY", 0, 3, -1, 1, Q("44 mm")))
sketch15.addConstraint(Sketcher.Constraint("Angle", 1, Q("73.5 deg")))
sketch15.addConstraint(Sketcher.Constraint("DistanceY", 0, 2, 1, 2, Q("117 mm")))
sketch15.addConstraint(Sketcher.Constraint("Radius", 2, Q("97.827501 mm")))
pad15 = body.newObject("PartDesign::Pad", "Pad014")
pad15.Profile = sketch15
pad15.Length = 15

sketch16 = body.newObject("Sketcher::SketchObject", "Sketch015")
sketch16.AttachmentSupport = (doc.getObject("XY_Plane"), [""])
sketch16.MapMode = "FlatFace"
sketch16.AttachmentOffset = App.Placement(Vector(0, 0, 426), App.Rotation())
sketch16.addGeometry(Part.Circle(Vector(0, -44, 0), Vector(0, 0, 1), 27), False)
sketch16.addConstraint(Sketcher.Constraint("PointOnObject", 0, 3, -2))
sketch16.addConstraint(Sketcher.Constraint("Diameter", 0, Q("54 mm")))
sketch16.addConstraint(Sketcher.Constraint("DistanceY", 0, 3, -1, 1, Q("44 mm")))
pad16 = body.newObject("PartDesign::Pad", "Pad015")
pad16.Profile = sketch16
pad16.Length = 46

sketch17 = body.newObject("Sketcher::SketchObject", "Sketch016")
sketch17.AttachmentSupport = (doc.getObject("XY_Plane"), [""])
sketch17.MapMode = "FlatFace"
sketch17.AttachmentOffset = App.Placement(Vector(0, 0, 472), App.Rotation())
sketch17.addGeometry(Part.ArcOfCircle(Part.Circle(Vector(0, -44, 0), Vector(0, 0, 1), 36), math.radians(-90), math.radians(-16)), False)
sketch17.addGeometry(Part.LineSegment(Vector(35, -54, 0), Vector(69, 63, 0)), False)
sketch17.addGeometry(Part.ArcOfCircle(Part.Circle(Vector(0, -6, 0), Vector(0, 0, 1), 98), math.radians(45), math.radians(90)), False)
sketch17.addGeometry(Part.ArcOfCircle(Part.Circle(Vector(0, -6, 0), Vector(0, 0, 1), 98), math.radians(90), math.radians(135)), False)
sketch17.addGeometry(Part.LineSegment(Vector(-69, 63, 0), Vector(-35, -54, 0)), False)
sketch17.addGeometry(Part.ArcOfCircle(Part.Circle(Vector(0, -44, 0), Vector(0, 0, 1), 36), math.radians(-164), math.radians(-90)), False)
sketch17.addConstraint(Sketcher.Constraint("Tangent", 0, 2, 1, 1))
sketch17.addConstraint(Sketcher.Constraint("Coincident", 1, 2, 2, 1))
sketch17.addConstraint(Sketcher.Constraint("Tangent", 2, 2, 3, 1))
sketch17.addConstraint(Sketcher.Constraint("Coincident", 3, 2, 4, 1))
sketch17.addConstraint(Sketcher.Constraint("Tangent", 4, 2, 5, 1))
sketch17.addConstraint(Sketcher.Constraint("Tangent", 5, 2, 0, 1))
sketch17.addConstraint(Sketcher.Constraint("Equal", 2, 3))
sketch17.addConstraint(Sketcher.Constraint("Equal", 0, 5))
sketch17.addConstraint(Sketcher.Constraint("Symmetric", 1, 2, 3, 2, -2))
sketch17.addConstraint(Sketcher.Constraint("PointOnObject", 0, 3, -2))
sketch17.addConstraint(Sketcher.Constraint("PointOnObject", 2, 2, -2))
sketch17.addConstraint(Sketcher.Constraint("PointOnObject", 5, 2, -2))
sketch17.addConstraint(Sketcher.Constraint("Radius", 0, Q("36 mm")))
sketch17.addConstraint(Sketcher.Constraint("DistanceY", 0, 3, -1, 1, Q("44 mm")))
sketch17.addConstraint(Sketcher.Constraint("Angle", 1, Q("73.5 deg")))
sketch17.addConstraint(Sketcher.Constraint("DistanceY", 0, 2, 1, 2, Q("117 mm")))
sketch17.addConstraint(Sketcher.Constraint("Radius", 2, Q("97.827501 mm")))
pad17 = body.newObject("PartDesign::Pad", "Pad016")
pad17.Profile = sketch17
pad17.Length = 15

sketch18 = body.newObject("Sketcher::SketchObject", "Sketch017")
sketch18.AttachmentSupport = (doc.getObject("XY_Plane"), [""])
sketch18.MapMode = "FlatFace"
sketch18.AttachmentOffset = App.Placement(Vector(0, 0, 487), App.Rotation())
sketch18.addGeometry(Part.Circle(Vector(0, 0, 0), Vector(0, 0, 1), 36), False)
sketch18.addConstraint(Sketcher.Constraint("Coincident", 0, 3, -1, 1))
sketch18.addConstraint(Sketcher.Constraint("Diameter", 0, Q("72 mm")))
pad18 = body.newObject("PartDesign::Pad", "Pad017")
pad18.Profile = sketch18
pad18.Length = 38

sketch19 = body.newObject("Sketcher::SketchObject", "Sketch018")
sketch19.AttachmentSupport = (doc.getObject("XY_Plane"), [""])
sketch19.MapMode = "FlatFace"
sketch19.AttachmentOffset = App.Placement(Vector(0, 0, 525), App.Rotation())
sketch19.addGeometry(Part.Circle(Vector(0, 0, 0), Vector(0, 0, 1), 16), False)
sketch19.addConstraint(Sketcher.Constraint("Coincident", 0, 3, -1, 1))
sketch19.addConstraint(Sketcher.Constraint("Diameter", 0, Q("32 mm")))
pad19 = body.newObject("PartDesign::Pad", "Pad018")
pad19.Profile = sketch19
pad19.Length = 80

doc.recompute()
